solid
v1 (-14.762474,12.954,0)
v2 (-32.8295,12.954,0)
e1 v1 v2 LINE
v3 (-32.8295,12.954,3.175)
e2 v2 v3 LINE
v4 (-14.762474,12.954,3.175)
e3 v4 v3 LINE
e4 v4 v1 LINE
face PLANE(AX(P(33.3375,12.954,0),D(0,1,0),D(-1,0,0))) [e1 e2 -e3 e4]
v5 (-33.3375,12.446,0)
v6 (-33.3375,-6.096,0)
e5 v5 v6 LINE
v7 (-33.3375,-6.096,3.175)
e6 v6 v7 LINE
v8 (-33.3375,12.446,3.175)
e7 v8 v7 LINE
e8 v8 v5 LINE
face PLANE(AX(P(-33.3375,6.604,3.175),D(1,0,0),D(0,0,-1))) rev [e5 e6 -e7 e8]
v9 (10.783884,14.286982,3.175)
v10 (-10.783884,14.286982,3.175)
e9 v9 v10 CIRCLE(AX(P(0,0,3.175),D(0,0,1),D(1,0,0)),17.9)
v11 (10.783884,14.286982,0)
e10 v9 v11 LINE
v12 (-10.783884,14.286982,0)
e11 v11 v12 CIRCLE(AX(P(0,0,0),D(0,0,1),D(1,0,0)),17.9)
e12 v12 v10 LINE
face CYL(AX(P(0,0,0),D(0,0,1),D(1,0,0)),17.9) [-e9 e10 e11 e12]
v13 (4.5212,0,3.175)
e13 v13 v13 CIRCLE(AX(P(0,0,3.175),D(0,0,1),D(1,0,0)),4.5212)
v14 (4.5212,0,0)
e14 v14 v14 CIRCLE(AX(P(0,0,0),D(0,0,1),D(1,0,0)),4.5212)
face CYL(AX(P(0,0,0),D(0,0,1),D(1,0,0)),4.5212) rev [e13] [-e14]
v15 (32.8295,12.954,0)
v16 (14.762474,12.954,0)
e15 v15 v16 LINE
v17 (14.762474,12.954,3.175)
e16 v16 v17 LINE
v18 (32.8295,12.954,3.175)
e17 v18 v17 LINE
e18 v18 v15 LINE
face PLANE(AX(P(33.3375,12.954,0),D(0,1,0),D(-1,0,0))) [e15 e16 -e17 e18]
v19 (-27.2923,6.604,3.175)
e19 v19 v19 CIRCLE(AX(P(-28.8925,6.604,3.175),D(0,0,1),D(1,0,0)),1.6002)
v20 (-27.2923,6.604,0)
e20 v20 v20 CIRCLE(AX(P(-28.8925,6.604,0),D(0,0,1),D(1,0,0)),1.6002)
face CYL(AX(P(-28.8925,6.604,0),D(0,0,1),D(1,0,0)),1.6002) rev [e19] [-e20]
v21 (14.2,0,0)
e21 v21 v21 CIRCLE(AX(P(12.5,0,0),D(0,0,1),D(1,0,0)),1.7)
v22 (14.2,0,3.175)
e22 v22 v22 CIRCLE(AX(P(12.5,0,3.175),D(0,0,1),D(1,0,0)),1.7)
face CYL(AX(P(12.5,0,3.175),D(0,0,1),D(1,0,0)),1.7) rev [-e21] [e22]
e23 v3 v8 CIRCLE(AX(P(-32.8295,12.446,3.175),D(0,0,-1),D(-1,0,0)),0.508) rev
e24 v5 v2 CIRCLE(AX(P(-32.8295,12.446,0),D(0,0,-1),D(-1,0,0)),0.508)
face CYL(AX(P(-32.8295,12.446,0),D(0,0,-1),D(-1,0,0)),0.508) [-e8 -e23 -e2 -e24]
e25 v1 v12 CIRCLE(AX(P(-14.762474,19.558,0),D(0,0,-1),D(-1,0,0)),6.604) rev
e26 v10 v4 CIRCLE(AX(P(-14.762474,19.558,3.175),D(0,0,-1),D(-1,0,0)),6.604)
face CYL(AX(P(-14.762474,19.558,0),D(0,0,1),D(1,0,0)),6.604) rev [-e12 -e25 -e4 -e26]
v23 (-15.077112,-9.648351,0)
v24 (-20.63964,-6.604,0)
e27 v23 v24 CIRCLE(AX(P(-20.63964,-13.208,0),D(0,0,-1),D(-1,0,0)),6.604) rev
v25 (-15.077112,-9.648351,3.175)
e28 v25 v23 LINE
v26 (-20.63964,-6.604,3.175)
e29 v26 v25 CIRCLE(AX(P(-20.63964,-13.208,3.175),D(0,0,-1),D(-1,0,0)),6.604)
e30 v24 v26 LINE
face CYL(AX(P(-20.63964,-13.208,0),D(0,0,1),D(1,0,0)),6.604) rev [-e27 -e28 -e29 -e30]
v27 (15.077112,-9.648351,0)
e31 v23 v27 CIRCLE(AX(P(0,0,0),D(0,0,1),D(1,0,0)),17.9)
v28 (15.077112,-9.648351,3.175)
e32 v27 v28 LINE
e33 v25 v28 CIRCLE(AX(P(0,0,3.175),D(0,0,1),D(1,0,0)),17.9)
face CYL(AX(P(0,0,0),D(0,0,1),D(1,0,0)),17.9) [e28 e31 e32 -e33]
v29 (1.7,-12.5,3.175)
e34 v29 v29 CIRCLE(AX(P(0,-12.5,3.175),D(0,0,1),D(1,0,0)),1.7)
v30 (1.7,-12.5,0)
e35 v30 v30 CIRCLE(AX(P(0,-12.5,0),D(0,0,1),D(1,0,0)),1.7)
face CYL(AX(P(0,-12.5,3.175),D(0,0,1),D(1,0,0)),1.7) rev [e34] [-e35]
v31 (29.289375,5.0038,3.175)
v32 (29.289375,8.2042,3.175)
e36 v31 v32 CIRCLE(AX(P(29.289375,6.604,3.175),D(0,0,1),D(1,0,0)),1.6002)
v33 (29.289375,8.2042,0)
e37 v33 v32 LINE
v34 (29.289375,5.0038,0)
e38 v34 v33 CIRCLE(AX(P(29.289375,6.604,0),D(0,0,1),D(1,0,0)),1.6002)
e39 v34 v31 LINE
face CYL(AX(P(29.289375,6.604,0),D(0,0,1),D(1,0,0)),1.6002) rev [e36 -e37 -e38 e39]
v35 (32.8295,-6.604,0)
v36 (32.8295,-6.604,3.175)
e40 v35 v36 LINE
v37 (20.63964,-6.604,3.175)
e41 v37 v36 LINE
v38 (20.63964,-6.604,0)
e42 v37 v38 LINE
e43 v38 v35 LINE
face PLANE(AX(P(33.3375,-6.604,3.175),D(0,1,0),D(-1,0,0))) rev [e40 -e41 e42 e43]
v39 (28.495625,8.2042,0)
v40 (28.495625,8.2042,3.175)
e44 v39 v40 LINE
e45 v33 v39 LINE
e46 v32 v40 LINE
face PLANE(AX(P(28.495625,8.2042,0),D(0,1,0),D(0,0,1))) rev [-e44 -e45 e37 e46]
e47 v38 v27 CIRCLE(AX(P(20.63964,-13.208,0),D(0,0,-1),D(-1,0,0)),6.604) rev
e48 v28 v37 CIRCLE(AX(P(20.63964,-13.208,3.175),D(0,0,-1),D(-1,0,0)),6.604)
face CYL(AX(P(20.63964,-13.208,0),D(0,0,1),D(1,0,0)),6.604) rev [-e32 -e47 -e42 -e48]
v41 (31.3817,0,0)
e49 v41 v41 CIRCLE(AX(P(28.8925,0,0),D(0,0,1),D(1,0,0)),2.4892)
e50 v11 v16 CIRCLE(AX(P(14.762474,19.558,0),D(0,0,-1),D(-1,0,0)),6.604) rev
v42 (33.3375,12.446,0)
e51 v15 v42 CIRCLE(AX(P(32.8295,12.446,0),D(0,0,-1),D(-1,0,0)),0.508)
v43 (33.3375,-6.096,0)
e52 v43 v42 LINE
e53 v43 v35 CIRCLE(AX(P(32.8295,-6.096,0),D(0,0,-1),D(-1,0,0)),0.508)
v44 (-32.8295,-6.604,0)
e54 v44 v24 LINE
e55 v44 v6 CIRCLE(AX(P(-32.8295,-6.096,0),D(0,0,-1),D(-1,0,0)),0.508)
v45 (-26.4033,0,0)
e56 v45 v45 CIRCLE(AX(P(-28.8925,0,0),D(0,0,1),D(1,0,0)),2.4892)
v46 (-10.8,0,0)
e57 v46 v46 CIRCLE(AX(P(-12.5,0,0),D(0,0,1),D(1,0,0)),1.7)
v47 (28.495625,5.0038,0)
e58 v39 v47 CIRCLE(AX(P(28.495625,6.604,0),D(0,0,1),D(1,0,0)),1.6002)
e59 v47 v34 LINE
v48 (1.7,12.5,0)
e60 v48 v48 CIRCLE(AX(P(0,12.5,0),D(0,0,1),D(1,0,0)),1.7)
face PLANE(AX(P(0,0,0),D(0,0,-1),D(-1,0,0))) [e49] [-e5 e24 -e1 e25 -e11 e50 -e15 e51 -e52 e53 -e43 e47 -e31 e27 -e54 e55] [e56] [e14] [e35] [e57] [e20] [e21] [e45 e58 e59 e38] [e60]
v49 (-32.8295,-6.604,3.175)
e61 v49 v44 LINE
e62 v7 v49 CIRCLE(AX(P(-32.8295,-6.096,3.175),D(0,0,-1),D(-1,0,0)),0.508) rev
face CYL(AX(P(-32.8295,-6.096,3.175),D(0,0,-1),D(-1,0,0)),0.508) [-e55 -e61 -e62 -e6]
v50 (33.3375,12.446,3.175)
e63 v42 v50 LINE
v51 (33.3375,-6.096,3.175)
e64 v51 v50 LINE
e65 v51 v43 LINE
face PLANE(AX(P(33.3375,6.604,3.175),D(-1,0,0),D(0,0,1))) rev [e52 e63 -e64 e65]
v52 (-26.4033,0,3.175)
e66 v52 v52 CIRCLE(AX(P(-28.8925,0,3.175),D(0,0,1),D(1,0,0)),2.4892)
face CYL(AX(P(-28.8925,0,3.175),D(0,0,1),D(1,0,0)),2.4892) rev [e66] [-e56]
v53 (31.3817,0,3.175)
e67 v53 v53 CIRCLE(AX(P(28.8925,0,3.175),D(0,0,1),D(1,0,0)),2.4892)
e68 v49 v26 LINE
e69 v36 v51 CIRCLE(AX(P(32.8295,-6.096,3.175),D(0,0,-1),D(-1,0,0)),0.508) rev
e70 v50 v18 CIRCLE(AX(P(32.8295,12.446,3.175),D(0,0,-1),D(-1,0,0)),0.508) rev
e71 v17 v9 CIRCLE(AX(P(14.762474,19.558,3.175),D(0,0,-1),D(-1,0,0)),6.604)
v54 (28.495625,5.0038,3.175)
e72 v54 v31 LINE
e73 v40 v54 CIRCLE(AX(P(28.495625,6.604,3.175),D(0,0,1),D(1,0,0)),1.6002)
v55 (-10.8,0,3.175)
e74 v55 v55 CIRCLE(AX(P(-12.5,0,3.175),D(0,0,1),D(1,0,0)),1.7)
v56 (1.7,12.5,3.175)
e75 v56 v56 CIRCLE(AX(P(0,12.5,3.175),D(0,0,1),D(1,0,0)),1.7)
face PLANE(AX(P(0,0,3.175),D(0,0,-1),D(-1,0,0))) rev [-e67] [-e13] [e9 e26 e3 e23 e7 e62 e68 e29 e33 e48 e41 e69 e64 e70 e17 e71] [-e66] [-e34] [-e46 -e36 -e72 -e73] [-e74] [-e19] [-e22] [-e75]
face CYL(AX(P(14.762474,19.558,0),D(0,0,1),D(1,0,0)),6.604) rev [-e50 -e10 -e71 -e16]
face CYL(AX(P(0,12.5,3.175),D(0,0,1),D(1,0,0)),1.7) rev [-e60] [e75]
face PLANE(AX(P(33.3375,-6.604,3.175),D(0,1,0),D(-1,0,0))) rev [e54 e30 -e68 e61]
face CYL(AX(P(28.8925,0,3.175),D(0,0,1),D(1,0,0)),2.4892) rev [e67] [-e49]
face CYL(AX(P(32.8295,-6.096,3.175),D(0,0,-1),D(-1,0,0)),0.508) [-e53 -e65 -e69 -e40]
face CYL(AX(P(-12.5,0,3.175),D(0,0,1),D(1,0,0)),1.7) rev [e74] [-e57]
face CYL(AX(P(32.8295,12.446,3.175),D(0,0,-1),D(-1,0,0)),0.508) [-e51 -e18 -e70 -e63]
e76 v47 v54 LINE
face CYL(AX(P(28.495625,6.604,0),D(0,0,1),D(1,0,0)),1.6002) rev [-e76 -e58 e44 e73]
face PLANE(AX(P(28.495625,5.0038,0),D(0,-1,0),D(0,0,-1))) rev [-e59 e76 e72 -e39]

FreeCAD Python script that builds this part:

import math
import FreeCAD as App
import Part
import Sketcher

V = App.Vector
Q = App.Units.Quantity


def edges_at(feature, points):
    """Names of the edges that pass closest to the given points."""
    edges = feature.Shape.Edges
    near = lambda p: min(range(len(edges)), key=lambda i: edges[i].distToShape(Part.Vertex(*p))[0])
    return sorted({f"Edge{near(p) + 1}" for p in points})

doc = App.newDocument("Part")
body = doc.addObject("PartDesign::Body", "Body")

sketch1 = body.newObject("Sketcher::SketchObject", "Sketch")
sketch1.AttachmentSupport = (doc.getObject("XY_Plane"), [""])
sketch1.MapMode = "FlatFace"
sketch1.addGeometry([
    Part.LineSegment(V(-33, 7, 0), V(-33, -7, 0)),
    Part.LineSegment(V(-33, -7, 0), V(33, -7, 0)),
    Part.LineSegment(V(33, -7, 0), V(33, 7, 0)),
    Part.LineSegment(V(33, 7, 0), V(-33, 7, 0)),
], False)
sketch1.addConstraint([
    Sketcher.Constraint("Coincident", 0, 2, 1, 1),
    Sketcher.Constraint("Coincident", 1, 2, 2, 1),
    Sketcher.Constraint("Coincident", 2, 2, 3, 1),
    Sketcher.Constraint("Coincident", 3, 2, 0, 1),
    Sketcher.Constraint("Vertical", 0),
    Sketcher.Constraint("Horizontal", 1),
    Sketcher.Constraint("Vertical", 2),
    Sketcher.Constraint("Horizontal", 3),
    Sketcher.Constraint("Symmetric", 0, 2, 2, 2, -1, 1),
    Sketcher.Constraint("DistanceY", 0, 2, 0, 1, Q("0.52 in")),
    Sketcher.Constraint("DistanceX", 1, 1, 1, 2, Q("2.625 in")),
])
pad1 = body.newObject("PartDesign::Pad", "Pad")
pad1.Profile = sketch1
pad1.Length = Q("0.125 in")

sketch2 = body.newObject("Sketcher::SketchObject", "Sketch001")
sketch2.AttachmentSupport = (doc.getObject("XY_Plane"), [""])
sketch2.MapMode = "FlatFace"
sketch2.AttachmentOffset = App.Placement(V(0, 0, 0.125 * 25.4), App.Rotation())
sketch2.addGeometry(Part.Circle(V(0, 0, 0), V(0, 0, 1), 18), False)
sketch2.addConstraint([
    Sketcher.Constraint("Coincident", 0, 3, -1, 1),
    Sketcher.Constraint("Diameter", 0, 35.8),
])
pad2 = body.newObject("PartDesign::Pad", "Pad001")
pad2.Profile = sketch2
pad2.Type = "UpToLast"
pad2.Reversed = True

sketch3 = body.newObject("Sketcher::SketchObject", "Sketch002")
sketch3.AttachmentSupport = (doc.getObject("XY_Plane"), [""])
sketch3.MapMode = "FlatFace"
sketch3.AttachmentOffset = App.Placement(V(0, 0, 0.125 * 25.4), App.Rotation())
sketch3.addGeometry([
    Part.LineSegment(V(-33, 13, 0), V(-33, 7, 0)),
    Part.LineSegment(V(-33, 7, 0), V(33, 7, 0)),
    Part.LineSegment(V(33, 7, 0), V(33, 13, 0)),
    Part.LineSegment(V(33, 13, 0), V(-33, 13, 0)),
], False)
sketch3.addConstraint([
    Sketcher.Constraint("Coincident", 0, 2, 1, 1),
    Sketcher.Constraint("Coincident", 1, 2, 2, 1),
    Sketcher.Constraint("Coincident", 2, 2, 3, 1),
    Sketcher.Constraint("Coincident", 3, 2, 0, 1),
    Sketcher.Constraint("Vertical", 0),
    Sketcher.Constraint("Horizontal", 1),
    Sketcher.Constraint("Vertical", 2),
    Sketcher.Constraint("Horizontal", 3),
    Sketcher.Constraint("DistanceY", 0, 2, 0, 1, Q("0.25 in")),
    Sketcher.Constraint("DistanceX", 1, 1, 1, 2, Q("2.625 in")),
    Sketcher.Constraint("DistanceY", -1, 1, 0, 2, Q("0.26 in")),
    Sketcher.Constraint("DistanceX", 0, 2, -1, 1, Q("1.3125 in")),
])
pad3 = body.newObject("PartDesign::Pad", "Pad002")
pad3.Profile = sketch3
pad3.Type = "UpToLast"
pad3.Reversed = True
doc.recompute()

fillet = body.newObject("PartDesign::Fillet", "Fillet")
fillet.Base = (pad3, edges_at(pad3, [
    (-16.637, -6.604, 1.587),
    (16.637, -6.604, 1.587),
    (12.353, 12.954, 1.587),
    (-12.353, 12.954, 1.587),
]))
fillet.Radius = Q("0.26 in")
doc.recompute()

fillet2 = body.newObject("PartDesign::Fillet", "Fillet001")
fillet2.Base = (fillet, edges_at(fillet, [
    (-33.337, 12.954, 1.587),
    (33.337, 12.954, 1.587),
    (33.337, -6.604, 1.587),
    (-33.337, -6.604, 1.587),
]))
fillet2.Radius = Q("0.02 in")

sketch4 = body.newObject("Sketcher::SketchObject", "Sketch003")
sketch4.AttachmentSupport = (doc.getObject("XY_Plane"), [""])
sketch4.MapMode = "FlatFace"
sketch4.AttachmentOffset = App.Placement(V(0, 0, 0.125 * 25.4), App.Rotation())
sketch4.addGeometry([
    Part.Circle(V(28.9, 0, 0), V(0, 0, 1), 2.5),
    Part.Circle(V(-28.9, 0, 0), V(0, 0, 1), 2.5),
], False)
sketch4.addConstraint([
    Sketcher.Constraint("Equal", 0, 1),
    Sketcher.Constraint("Symmetric", 0, 3, 1, 3, -1, 1),
    Sketcher.Constraint("PointOnObject", 0, 3, -1),
    Sketcher.Constraint("Diameter", 0, Q("0.196 in")),
    Sketcher.Constraint("DistanceX", 1, 3, 0, 3, Q("2.275 in")),
])
doc.recompute()
hole = body.newObject("PartDesign::Hole", "Hole")
hole.Profile = sketch4
hole.ThreadType = "None"
hole.Diameter = Q("0.196 in")
hole.DepthType = "ThroughAll"

sketch5 = body.newObject("Sketcher::SketchObject", "Sketch004")
sketch5.AttachmentSupport = (doc.getObject("XY_Plane"), [""])
sketch5.MapMode = "FlatFace"
sketch5.AttachmentOffset = App.Placement(V(0, 0, 0.125 * 25.4), App.Rotation())
sketch5.addGeometry(Part.Circle(V(0, 0, 0), V(0, 0, 1), 4.5), False)
sketch5.addConstraint([
    Sketcher.Constraint("Coincident", 0, 3, -1, 1),
    Sketcher.Constraint("Diameter", 0, Q("0.356 in")),
])
pocket1 = body.newObject("PartDesign::Pocket", "Pocket")
pocket1.Profile = sketch5
pocket1.Type = "ThroughAll"

sketch6 = body.newObject("Sketcher::SketchObject", "Sketch005")
sketch6.AttachmentSupport = (doc.getObject("XY_Plane"), [""])
sketch6.MapMode = "FlatFace"
sketch6.AttachmentOffset = App.Placement(V(0, 0, 0.125 * 25.4), App.Rotation())
sketch6.addGeometry([
    Part.Circle(V(0, 12.5, 0), V(0, 0, 1), 1.7),
    Part.Circle(V(-12.5, 0, 0), V(0, 0, 1), 1.7),
    Part.Circle(V(0, -12.5, 0), V(0, 0, 1), 1.7),
    Part.Circle(V(12.5, 0, 0), V(0, 0, 1), 1.7),
], False)
sketch6.addConstraint([
    Sketcher.Constraint("Equal", 0, 1),
    Sketcher.Constraint("Equal", 1, 2),
    Sketcher.Constraint("Equal", 2, 3),
    Sketcher.Constraint("Symmetric", 0, 3, 2, 3, -1, 1),
    Sketcher.Constraint("Symmetric", 1, 3, 3, 3, -1, 1),
    Sketcher.Constraint("PointOnObject", 0, 3, -2),
    Sketcher.Constraint("PointOnObject", 1, 3, -1),
    Sketcher.Constraint("Diameter", 0, 3.4),
    Sketcher.Constraint("DistanceY", -1, 1, 0, 3, 12.5),
    Sketcher.Constraint("DistanceX", 1, 3, -1, 1, 12.5),
])
doc.recompute()
hole2 = body.newObject("PartDesign::Hole", "Hole001")
hole2.Profile = sketch6
hole2.ThreadType = "None"
hole2.Diameter = 3.4
hole2.DepthType = "ThroughAll"

sketch7 = body.newObject("Sketcher::SketchObject", "Sketch006")
sketch7.AttachmentSupport = (doc.getObject("XY_Plane"), [""])
sketch7.MapMode = "FlatFace"
sketch7.AttachmentOffset = App.Placement(V(0, 0, 0.125 * 25.4), App.Rotation())
sketch7.addGeometry([
    Part.Circle(V(-28.9, 6.6, 0), V(0, 0, 1), 1.6),
    Part.LineSegment(V(29.3, 8.2, 0), V(28.5, 8.2, 0)),
    Part.ArcOfCircle(Part.Circle(V(28.5, 6.6, 0), V(0, 0, 1), 1.6), math.radians(90), math.radians(270)),
    Part.LineSegment(V(28.5, 5, 0), V(29.3, 5, 0)),
    Part.ArcOfCircle(Part.Circle(V(29.3, 6.6, 0), V(0, 0, 1), 1.6), math.radians(-90), math.radians(90)),
], False)
sketch7.addConstraint([
    Sketcher.Constraint("Tangent", 1, 2, 2, 1),
    Sketcher.Constraint("Tangent", 2, 2, 3, 1),
    Sketcher.Constraint("Tangent", 3, 2, 4, 1),
    Sketcher.Constraint("Tangent", 4, 2, 1, 1),
    Sketcher.Constraint("Horizontal", 1),
    Sketcher.Constraint("Horizontal", 3),
    Sketcher.Constraint("Equal", 0, 2),
    Sketcher.Constraint("Horizontal", 0, 3, 2, 3),
    Sketcher.Constraint("Diameter", 0, Q("0.126 in")),
    Sketcher.Constraint("DistanceX", 1, 2, 1, 1, Q("0.03125 in")),
    Sketcher.Constraint("DistanceY", -1, 1, 0, 3, Q("0.26 in")),
    Sketcher.Constraint("DistanceX", 0, 3, -1, 1, Q("1.1375 in")),
    Sketcher.Constraint("DistanceX", -1, 1, 2, 3, 28.495625),
])
pocket2 = body.newObject("PartDesign::Pocket", "Pocket001")
pocket2.Profile = sketch7
pocket2.Type = "ThroughAll"

doc.recompute()
